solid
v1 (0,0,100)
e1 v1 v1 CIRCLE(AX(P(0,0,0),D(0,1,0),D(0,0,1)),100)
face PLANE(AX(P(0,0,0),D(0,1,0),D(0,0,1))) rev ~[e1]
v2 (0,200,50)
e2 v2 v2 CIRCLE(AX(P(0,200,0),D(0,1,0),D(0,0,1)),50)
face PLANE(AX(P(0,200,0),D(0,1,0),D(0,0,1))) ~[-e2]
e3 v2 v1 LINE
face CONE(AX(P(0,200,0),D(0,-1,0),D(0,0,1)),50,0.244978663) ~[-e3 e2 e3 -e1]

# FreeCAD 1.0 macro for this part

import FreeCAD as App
import Part
import Sketcher
Q = App.Units.Quantity


def add_polygon(sketch, points):
    """Adds a closed chain of lines whose ends are joined by coincident constraints."""
    first, n = sketch.GeometryCount, len(points)
    for a, b in zip(points, points[1:] + points[:1]):
        sketch.addGeometry(Part.LineSegment(App.Vector(*a, 0), App.Vector(*b, 0)), False)
    for i in range(n):
        sketch.addConstraint(Sketcher.Constraint("Coincident", first + i, 2, first + (i + 1) % n, 1))

doc = App.newDocument("Part")
body = doc.addObject("PartDesign::Body", "Body")

# Sketch on YZ plane
sketch1 = body.newObject("Sketcher::SketchObject", "Sketch")
sketch1.AttachmentSupport = (doc.getObject("YZ_Plane"), [""])
sketch1.MapMode = "FlatFace"
add_polygon(sketch1, [(0, 100), (0, 0), (200, 0), (200, 50)])  # lines 0-3
sketch1.addConstraint([
    Sketcher.Constraint("Vertical", 0),
    Sketcher.Constraint("Horizontal", 1),
    Sketcher.Constraint("Vertical", 2),
    Sketcher.Constraint("Coincident", 0, 2, -1, 1),
    Sketcher.Constraint("DistanceX", 1, 1, 1, 2, Q("200 mm")),
    Sketcher.Constraint("DistanceY", 0, 2, 0, 1, Q("100 mm")),
    Sketcher.Constraint("DistanceY", 2, 1, 2, 2, Q("50 mm")),
])
revolution = body.newObject("PartDesign::Revolution", "Revolution")
revolution.Profile = sketch1
revolution.ReferenceAxis = (sketch1, ["H_Axis"])
revolution.Angle = 360

doc.recompute()
